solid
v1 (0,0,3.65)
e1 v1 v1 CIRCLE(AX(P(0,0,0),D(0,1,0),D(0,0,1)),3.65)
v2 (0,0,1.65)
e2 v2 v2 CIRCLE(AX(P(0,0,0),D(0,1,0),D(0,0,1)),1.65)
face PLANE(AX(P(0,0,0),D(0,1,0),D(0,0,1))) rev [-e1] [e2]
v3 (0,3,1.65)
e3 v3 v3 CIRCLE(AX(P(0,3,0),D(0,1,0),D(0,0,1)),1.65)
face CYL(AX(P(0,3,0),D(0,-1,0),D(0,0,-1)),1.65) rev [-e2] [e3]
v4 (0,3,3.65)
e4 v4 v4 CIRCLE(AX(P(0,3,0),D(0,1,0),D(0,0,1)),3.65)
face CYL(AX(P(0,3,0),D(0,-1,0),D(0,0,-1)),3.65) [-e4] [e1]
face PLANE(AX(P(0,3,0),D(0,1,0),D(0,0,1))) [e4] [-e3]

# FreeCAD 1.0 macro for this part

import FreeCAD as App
import Part
import Sketcher

doc = App.newDocument("Part")
body = doc.addObject("PartDesign::Body", "Body")

sketch1 = doc.addObject("Sketcher::SketchObject", "Sketch")
body.addObject(sketch1)
sketch1.AttachmentSupport = (doc.XZ_Plane, [""])
sketch1.MapMode = "FlatFace"
sketch1.addGeometry(Part.Circle(App.Vector(0, 0, 0), App.Vector(0, 0, 1), 3.6), False)
sketch1.addGeometry(Part.Circle(App.Vector(0, 0, 0), App.Vector(0, 0, 1), 1.6), False)
sketch1.addConstraint(Sketcher.Constraint("Coincident", 0, 3, -1, 1))
sketch1.addConstraint(Sketcher.Constraint("Coincident", 1, 3, -1, 1))
sketch1.addConstraint(Sketcher.Constraint("Diameter", 0, 7.3))
sketch1.addConstraint(Sketcher.Constraint("Diameter", 1, 3.3))
pad1 = doc.addObject("PartDesign::Pad", "Pad")
body.addObject(pad1)
pad1.Profile = sketch1
pad1.Length = 3
pad1.Reversed = True

doc.recompute()
